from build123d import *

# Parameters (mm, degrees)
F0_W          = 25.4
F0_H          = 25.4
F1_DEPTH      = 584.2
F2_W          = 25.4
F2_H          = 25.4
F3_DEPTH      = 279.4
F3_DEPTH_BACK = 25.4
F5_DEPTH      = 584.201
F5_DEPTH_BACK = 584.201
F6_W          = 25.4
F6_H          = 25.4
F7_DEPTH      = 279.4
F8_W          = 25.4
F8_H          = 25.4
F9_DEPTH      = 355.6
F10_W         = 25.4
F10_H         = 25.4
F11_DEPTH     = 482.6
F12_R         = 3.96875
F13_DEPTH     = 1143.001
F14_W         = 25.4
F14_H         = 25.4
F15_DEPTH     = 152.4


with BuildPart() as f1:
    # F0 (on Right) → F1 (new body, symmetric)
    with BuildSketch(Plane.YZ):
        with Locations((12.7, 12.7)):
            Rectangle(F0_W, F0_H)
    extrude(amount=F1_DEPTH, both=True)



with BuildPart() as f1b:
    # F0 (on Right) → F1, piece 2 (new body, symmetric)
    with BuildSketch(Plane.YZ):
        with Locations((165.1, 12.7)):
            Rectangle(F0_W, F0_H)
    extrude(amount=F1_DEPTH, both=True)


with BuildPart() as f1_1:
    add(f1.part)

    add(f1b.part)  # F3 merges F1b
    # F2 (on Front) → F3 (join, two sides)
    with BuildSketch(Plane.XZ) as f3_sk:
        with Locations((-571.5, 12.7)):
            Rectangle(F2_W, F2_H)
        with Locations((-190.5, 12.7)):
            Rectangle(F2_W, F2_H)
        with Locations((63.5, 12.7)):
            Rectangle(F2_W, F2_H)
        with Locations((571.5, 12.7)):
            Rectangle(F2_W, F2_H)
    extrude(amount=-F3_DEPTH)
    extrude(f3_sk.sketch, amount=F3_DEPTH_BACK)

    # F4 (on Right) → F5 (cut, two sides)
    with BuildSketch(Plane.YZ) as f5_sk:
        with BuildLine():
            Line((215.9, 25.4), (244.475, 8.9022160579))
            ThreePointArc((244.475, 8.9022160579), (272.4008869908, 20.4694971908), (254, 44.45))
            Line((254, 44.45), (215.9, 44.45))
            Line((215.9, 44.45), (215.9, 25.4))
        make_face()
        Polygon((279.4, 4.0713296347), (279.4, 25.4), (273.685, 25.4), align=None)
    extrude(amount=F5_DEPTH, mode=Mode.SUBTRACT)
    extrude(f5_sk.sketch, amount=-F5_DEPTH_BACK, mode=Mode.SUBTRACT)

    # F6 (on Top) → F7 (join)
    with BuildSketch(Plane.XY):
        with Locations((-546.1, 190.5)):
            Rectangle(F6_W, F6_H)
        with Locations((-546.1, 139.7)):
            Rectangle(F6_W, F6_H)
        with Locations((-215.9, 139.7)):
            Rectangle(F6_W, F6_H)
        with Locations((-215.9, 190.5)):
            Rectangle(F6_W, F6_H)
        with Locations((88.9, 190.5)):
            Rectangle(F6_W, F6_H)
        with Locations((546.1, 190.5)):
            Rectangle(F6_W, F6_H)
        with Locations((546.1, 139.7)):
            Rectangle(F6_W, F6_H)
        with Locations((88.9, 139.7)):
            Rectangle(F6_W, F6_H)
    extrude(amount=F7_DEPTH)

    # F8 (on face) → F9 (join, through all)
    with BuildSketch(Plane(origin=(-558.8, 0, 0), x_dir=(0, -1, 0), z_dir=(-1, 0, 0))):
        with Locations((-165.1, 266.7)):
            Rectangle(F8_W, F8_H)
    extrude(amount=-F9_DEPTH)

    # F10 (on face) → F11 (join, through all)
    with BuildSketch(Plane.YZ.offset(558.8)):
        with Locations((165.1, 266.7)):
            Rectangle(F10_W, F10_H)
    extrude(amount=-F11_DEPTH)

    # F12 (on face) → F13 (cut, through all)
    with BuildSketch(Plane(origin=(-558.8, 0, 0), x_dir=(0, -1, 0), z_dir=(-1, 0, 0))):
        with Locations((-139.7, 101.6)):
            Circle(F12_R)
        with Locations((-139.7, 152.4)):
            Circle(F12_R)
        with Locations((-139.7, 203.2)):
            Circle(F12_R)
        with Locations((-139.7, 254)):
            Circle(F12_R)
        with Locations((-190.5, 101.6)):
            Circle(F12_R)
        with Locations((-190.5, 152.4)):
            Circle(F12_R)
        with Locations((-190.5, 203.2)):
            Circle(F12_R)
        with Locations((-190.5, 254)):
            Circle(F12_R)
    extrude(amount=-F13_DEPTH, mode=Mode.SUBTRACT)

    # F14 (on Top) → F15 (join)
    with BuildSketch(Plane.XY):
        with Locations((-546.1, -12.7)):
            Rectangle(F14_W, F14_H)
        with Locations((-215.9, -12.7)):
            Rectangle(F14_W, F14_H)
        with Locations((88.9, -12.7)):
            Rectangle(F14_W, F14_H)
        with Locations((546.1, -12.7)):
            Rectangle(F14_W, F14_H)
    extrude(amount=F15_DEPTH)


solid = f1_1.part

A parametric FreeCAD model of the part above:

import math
import FreeCAD as App
import Part
import Sketcher
from FreeCAD import Vector
Q = App.Units.Quantity

doc = App.newDocument("Part")
params = doc.addObject("Spreadsheet::Sheet", "Params")
for row, (alias, value) in enumerate([
    ("sketch1_width", "1 in"),
    ("pad1_length", "46 in"),
    ("sketch2_width", "1 in"),
    ("pad2_length", "46 in"),
    ("sketch3_width", "1 in"),
    ("pad3_length", "11 in"),
    ("pad3_length2", "1 in"),
    ("sketch4_radius", "0.75 in"),
    ("sketch4_width", "1.5 in"),
    ("sketch4_width2", "0.225 in"),
    ("sketch5_width", "1 in"),
    ("pad4_length", "11 in"),
    ("sketch6_width", "1 in"),
    ("pad5_length", "14 in"),
    ("sketch7_width", "1 in"),
    ("pad6_length", "19 in"),
    ("sketch8_diameter", "0.3125 in"),
    ("sketch9_width", "1 in"),
    ("pad7_length", "6 in"),
], start=1):
    params.set(f"A{row}", alias)
    params.set(f"B{row}", "=" + value)
    params.setAlias(f"B{row}", alias)

body = doc.addObject("PartDesign::Body", "Body")

# Sketch on YZ plane
sketch1 = body.newObject("Sketcher::SketchObject", "Sketch")
sketch1.AttachmentSupport = (doc.getObject("YZ_Plane"), [""])
sketch1.MapMode = "FlatFace"
sketch1.addGeometry(Part.LineSegment(Vector(0, 25, 0), Vector(0, 0, 0)), False)
sketch1.addGeometry(Part.LineSegment(Vector(0, 0, 0), Vector(25, 0, 0)), False)
sketch1.addGeometry(Part.LineSegment(Vector(25, 0, 0), Vector(25, 25, 0)), False)
sketch1.addGeometry(Part.LineSegment(Vector(25, 25, 0), Vector(0, 25, 0)), False)
sketch1.addConstraint(Sketcher.Constraint("Coincident", 0, 2, 1, 1))
sketch1.addConstraint(Sketcher.Constraint("Coincident", 1, 2, 2, 1))
sketch1.addConstraint(Sketcher.Constraint("Coincident", 2, 2, 3, 1))
sketch1.addConstraint(Sketcher.Constraint("Coincident", 3, 2, 0, 1))
sketch1.addConstraint(Sketcher.Constraint("Vertical", 0))
sketch1.addConstraint(Sketcher.Constraint("Horizontal", 1))
sketch1.addConstraint(Sketcher.Constraint("Vertical", 2))
sketch1.addConstraint(Sketcher.Constraint("Horizontal", 3))
sketch1.addConstraint(Sketcher.Constraint("Coincident", 0, 2, -1, 1))
sketch1.addConstraint(Sketcher.Constraint("Equal", 3, 0))
sketch1.addConstraint(Sketcher.Constraint("DistanceX", 1, 1, 1, 2, Q("1 in")))
sketch1.setExpression("Constraints[10]", "Params.sketch1_width")
pad1 = body.newObject("PartDesign::Pad", "Pad")
pad1.Profile = sketch1
pad1.setExpression("Length", "Params.pad1_length")
pad1.Midplane = True
body2 = doc.addObject("PartDesign::Body", "Body001")

# Sketch on YZ plane
sketch2 = body2.newObject("Sketcher::SketchObject", "Sketch001")
sketch2.AttachmentSupport = (doc.getObject("YZ_Plane001"), [""])
sketch2.MapMode = "FlatFace"
sketch2.addGeometry(Part.LineSegment(Vector(152, 25, 0), Vector(152, 0, 0)), False)
sketch2.addGeometry(Part.LineSegment(Vector(152, 0, 0), Vector(178, 0, 0)), False)
sketch2.addGeometry(Part.LineSegment(Vector(178, 0, 0), Vector(178, 25, 0)), False)
sketch2.addGeometry(Part.LineSegment(Vector(178, 25, 0), Vector(152, 25, 0)), False)
sketch2.addConstraint(Sketcher.Constraint("Coincident", 0, 2, 1, 1))
sketch2.addConstraint(Sketcher.Constraint("Coincident", 1, 2, 2, 1))
sketch2.addConstraint(Sketcher.Constraint("Coincident", 2, 2, 3, 1))
sketch2.addConstraint(Sketcher.Constraint("Coincident", 3, 2, 0, 1))
sketch2.addConstraint(Sketcher.Constraint("Vertical", 0))
sketch2.addConstraint(Sketcher.Constraint("Horizontal", 1))
sketch2.addConstraint(Sketcher.Constraint("Vertical", 2))
sketch2.addConstraint(Sketcher.Constraint("Horizontal", 3))
sketch2.addConstraint(Sketcher.Constraint("PointOnObject", 0, 2, -1))
sketch2.addConstraint(Sketcher.Constraint("Equal", 3, 0))
sketch2.addConstraint(Sketcher.Constraint("DistanceX", 1, 1, 1, 2, Q("1 in")))
sketch2.addConstraint(Sketcher.Constraint("DistanceX", -1, 1, 0, 2, Q("6 in")))
sketch2.setExpression("Constraints[10]", "Params.sketch2_width")
pad2 = body2.newObject("PartDesign::Pad", "Pad001")
pad2.Profile = sketch2
pad2.setExpression("Length", "Params.pad2_length")
pad2.Midplane = True
body.AllowCompound = True
doc.recompute()

boolean = body.newObject("PartDesign::Boolean", "Boolean")
boolean.Type = "Fuse"
boolean.addObjects([body2])

# Sketch on XZ plane
sketch3 = body.newObject("Sketcher::SketchObject", "Sketch002")
sketch3.AttachmentSupport = (doc.getObject("XZ_Plane"), [""])
sketch3.MapMode = "FlatFace"
sketch3.addGeometry(Part.LineSegment(Vector(-584, 25, 0), Vector(-584, 0, 0)), False)
sketch3.addGeometry(Part.LineSegment(Vector(-584, 0, 0), Vector(-559, 0, 0)), False)
sketch3.addGeometry(Part.LineSegment(Vector(-559, 0, 0), Vector(-559, 25, 0)), False)
sketch3.addGeometry(Part.LineSegment(Vector(-559, 25, 0), Vector(-584, 25, 0)), False)
sketch3.addGeometry(Part.LineSegment(Vector(-203, 25, 0), Vector(-203, 0, 0)), False)
sketch3.addGeometry(Part.LineSegment(Vector(-203, 0, 0), Vector(-178, 0, 0)), False)
sketch3.addGeometry(Part.LineSegment(Vector(-178, 0, 0), Vector(-178, 25, 0)), False)
sketch3.addGeometry(Part.LineSegment(Vector(-178, 25, 0), Vector(-203, 25, 0)), False)
sketch3.addGeometry(Part.LineSegment(Vector(51, 25, 0), Vector(51, 0, 0)), False)
sketch3.addGeometry(Part.LineSegment(Vector(51, 0, 0), Vector(76, 0, 0)), False)
sketch3.addGeometry(Part.LineSegment(Vector(76, 0, 0), Vector(76, 25, 0)), False)
sketch3.addGeometry(Part.LineSegment(Vector(76, 25, 0), Vector(51, 25, 0)), False)
sketch3.addGeometry(Part.LineSegment(Vector(559, 25, 0), Vector(559, 0, 0)), False)
sketch3.addGeometry(Part.LineSegment(Vector(559, 0, 0), Vector(584, 0, 0)), False)
sketch3.addGeometry(Part.LineSegment(Vector(584, 0, 0), Vector(584, 25, 0)), False)
sketch3.addGeometry(Part.LineSegment(Vector(584, 25, 0), Vector(559, 25, 0)), False)
sketch3.addConstraint(Sketcher.Constraint("Coincident", 0, 2, 1, 1))
sketch3.addConstraint(Sketcher.Constraint("Coincident", 1, 2, 2, 1))
sketch3.addConstraint(Sketcher.Constraint("Coincident", 2, 2, 3, 1))
sketch3.addConstraint(Sketcher.Constraint("Coincident", 3, 2, 0, 1))
sketch3.addConstraint(Sketcher.Constraint("Coincident", 4, 2, 5, 1))
sketch3.addConstraint(Sketcher.Constraint("Coincident", 5, 2, 6, 1))
sketch3.addConstraint(Sketcher.Constraint("Coincident", 6, 2, 7, 1))
sketch3.addConstraint(Sketcher.Constraint("Coincident", 7, 2, 4, 1))
sketch3.addConstraint(Sketcher.Constraint("Coincident", 8, 2, 9, 1))
sketch3.addConstraint(Sketcher.Constraint("Coincident", 9, 2, 10, 1))
sketch3.addConstraint(Sketcher.Constraint("Coincident", 10, 2, 11, 1))
sketch3.addConstraint(Sketcher.Constraint("Coincident", 11, 2, 8, 1))
sketch3.addConstraint(Sketcher.Constraint("Coincident", 12, 2, 13, 1))
sketch3.addConstraint(Sketcher.Constraint("Coincident", 13, 2, 14, 1))
sketch3.addConstraint(Sketcher.Constraint("Coincident", 14, 2, 15, 1))
sketch3.addConstraint(Sketcher.Constraint("Coincident", 15, 2, 12, 1))
sketch3.addConstraint(Sketcher.Constraint("Vertical", 0))
sketch3.addConstraint(Sketcher.Constraint("Horizontal", 1))
sketch3.addConstraint(Sketcher.Constraint("Vertical", 2))
sketch3.addConstraint(Sketcher.Constraint("Horizontal", 3))
sketch3.addConstraint(Sketcher.Constraint("Vertical", 4))
sketch3.addConstraint(Sketcher.Constraint("Horizontal", 5))
sketch3.addConstraint(Sketcher.Constraint("Vertical", 6))
sketch3.addConstraint(Sketcher.Constraint("Horizontal", 7))
sketch3.addConstraint(Sketcher.Constraint("Vertical", 8))
sketch3.addConstraint(Sketcher.Constraint("Horizontal", 9))
sketch3.addConstraint(Sketcher.Constraint("Vertical", 10))
sketch3.addConstraint(Sketcher.Constraint("Horizontal", 11))
sketch3.addConstraint(Sketcher.Constraint("Vertical", 12))
sketch3.addConstraint(Sketcher.Constraint("Horizontal", 13))
sketch3.addConstraint(Sketcher.Constraint("Vertical", 14))
sketch3.addConstraint(Sketcher.Constraint("Horizontal", 15))
sketch3.addConstraint(Sketcher.Constraint("Symmetric", 1, 2, 12, 2, -1, 1))
sketch3.addConstraint(Sketcher.Constraint("Symmetric", 0, 2, 13, 2, -2))
sketch3.addConstraint(Sketcher.Constraint("PointOnObject", 4, 2, -1))
sketch3.addConstraint(Sketcher.Constraint("PointOnObject", 8, 2, -1))
sketch3.addConstraint(Sketcher.Constraint("Horizontal", 3, 2, 6, 2))
sketch3.addConstraint(Sketcher.Constraint("Horizontal", 7, 2, 10, 2))
sketch3.addConstraint(Sketcher.Constraint("Horizontal", 11, 2, 14, 2))
sketch3.addConstraint(Sketcher.Constraint("Equal", 3, 5))
sketch3.addConstraint(Sketcher.Constraint("Equal", 7, 9))
sketch3.addConstraint(Sketcher.Constraint("Equal", 15, 0))
sketch3.addConstraint(Sketcher.Constraint("DistanceX", 1, 1, 1, 2, Q("1 in")))
sketch3.addConstraint(Sketcher.Constraint("DistanceX", 0, 2, -1, 1, Q("23 in")))
sketch3.addConstraint(Sketcher.Constraint("DistanceX", 4, 2, -1, 1, Q("8 in")))
sketch3.addConstraint(Sketcher.Constraint("DistanceX", -1, 1, 8, 2, Q("2 in")))
sketch3.setExpression("Constraints[42]", "Params.sketch3_width")
pad3 = body.newObject("PartDesign::Pad", "Pad002")
pad3.Profile = sketch3
pad3.Type = "TwoLengths"
pad3.setExpression("Length", "Params.pad3_length")
pad3.setExpression("Length2", "Params.pad3_length2")
pad3.Reversed = True

# Sketch on YZ plane
sketch4 = body.newObject("Sketcher::SketchObject", "Sketch003")
sketch4.AttachmentSupport = (doc.getObject("YZ_Plane"), [""])
sketch4.MapMode = "FlatFace"
sketch4.addGeometry(Part.LineSegment(Vector(216, 25, 0), Vector(244, 9, 0)), False)
sketch4.addGeometry(Part.ArcOfCircle(Part.Circle(Vector(254, 25, 0), Vector(0, 0, 1), 19), math.radians(-120), math.radians(90)), False)
sketch4.addGeometry(Part.LineSegment(Vector(254, 44, 0), Vector(216, 44, 0)), False)
sketch4.addGeometry(Part.LineSegment(Vector(216, 44, 0), Vector(216, 25, 0)), False)
sketch4.addGeometry(Part.LineSegment(Vector(279, 4, 0), Vector(279, 25, 0)), False)
sketch4.addGeometry(Part.LineSegment(Vector(279, 25, 0), Vector(274, 25, 0)), False)
sketch4.addGeometry(Part.LineSegment(Vector(274, 25, 0), Vector(279, 4, 0)), False)
sketch4.addConstraint(Sketcher.Constraint("Tangent", 0, 2, 1, 1))
sketch4.addConstraint(Sketcher.Constraint("Tangent", 1, 2, 2, 1))
sketch4.addConstraint(Sketcher.Constraint("Coincident", 2, 2, 3, 1))
sketch4.addConstraint(Sketcher.Constraint("Coincident", 3, 2, 0, 1))
sketch4.addConstraint(Sketcher.Constraint("Coincident", 4, 2, 5, 1))
sketch4.addConstraint(Sketcher.Constraint("Coincident", 5, 2, 6, 1))
sketch4.addConstraint(Sketcher.Constraint("Coincident", 6, 2, 4, 1))
sketch4.addConstraint(Sketcher.Constraint("Horizontal", 2))
sketch4.addConstraint(Sketcher.Constraint("Vertical", 3))
sketch4.addConstraint(Sketcher.Constraint("Vertical", 4))
sketch4.addConstraint(Sketcher.Constraint("Horizontal", 5))
sketch4.addConstraint(Sketcher.Constraint("Horizontal", 1, 3, 3, 2))
sketch4.addConstraint(Sketcher.Constraint("Horizontal", 3, 2, 4, 2))
sketch4.addConstraint(Sketcher.Constraint("Radius", 1, Q("0.75 in")))
sketch4.addConstraint(Sketcher.Constraint("DistanceX", 2, 2, 2, 1, Q("1.5 in")))
sketch4.addConstraint(Sketcher.Constraint("DistanceX", -1, 1, 1, 3, Q("10 in")))
sketch4.addConstraint(Sketcher.Constraint("DistanceY", -1, 1, 1, 3, Q("1 in")))
sketch4.addConstraint(Sketcher.Constraint("DistanceX", -1, 1, 4, 2, Q("11 in")))
sketch4.addConstraint(Sketcher.Constraint("Angle", 6, Q("-75 deg")))
sketch4.addConstraint(Sketcher.Constraint("DistanceX", 5, 2, 5, 1, Q("0.225 in")))
sketch4.setExpression("Constraints[13]", "Params.sketch4_radius")
sketch4.setExpression("Constraints[14]", "Params.sketch4_width")
sketch4.setExpression("Constraints[19]", "Params.sketch4_width2")
pocket1 = body.newObject("PartDesign::Pocket", "Pocket")
pocket1.Profile = sketch4
pocket1.Type = "ThroughAll"
pocket1.Midplane = True

# Sketch on XY plane
sketch5 = body.newObject("Sketcher::SketchObject", "Sketch004")
sketch5.AttachmentSupport = (doc.getObject("XY_Plane"), [""])
sketch5.MapMode = "FlatFace"
sketch5.addGeometry(Part.LineSegment(Vector(-559, 203, 0), Vector(-559, 178, 0)), False)
sketch5.addGeometry(Part.LineSegment(Vector(-559, 178, 0), Vector(-533, 178, 0)), False)
sketch5.addGeometry(Part.LineSegment(Vector(-533, 178, 0), Vector(-533, 203, 0)), False)
sketch5.addGeometry(Part.LineSegment(Vector(-533, 203, 0), Vector(-559, 203, 0)), False)
sketch5.addGeometry(Part.LineSegment(Vector(-559, 152, 0), Vector(-559, 127, 0)), False)
sketch5.addGeometry(Part.LineSegment(Vector(-559, 127, 0), Vector(-533, 127, 0)), False)
sketch5.addGeometry(Part.LineSegment(Vector(-533, 127, 0), Vector(-533, 152, 0)), False)
sketch5.addGeometry(Part.LineSegment(Vector(-533, 152, 0), Vector(-559, 152, 0)), False)
sketch5.addGeometry(Part.LineSegment(Vector(-229, 152, 0), Vector(-229, 127, 0)), False)
sketch5.addGeometry(Part.LineSegment(Vector(-229, 127, 0), Vector(-203, 127, 0)), False)
sketch5.addGeometry(Part.LineSegment(Vector(-203, 127, 0), Vector(-203, 152, 0)), False)
sketch5.addGeometry(Part.LineSegment(Vector(-203, 152, 0), Vector(-229, 152, 0)), False)
sketch5.addGeometry(Part.LineSegment(Vector(-229, 203, 0), Vector(-229, 178, 0)), False)
sketch5.addGeometry(Part.LineSegment(Vector(-229, 178, 0), Vector(-203, 178, 0)), False)
sketch5.addGeometry(Part.LineSegment(Vector(-203, 178, 0), Vector(-203, 203, 0)), False)
sketch5.addGeometry(Part.LineSegment(Vector(-203, 203, 0), Vector(-229, 203, 0)), False)
sketch5.addGeometry(Part.LineSegment(Vector(76, 203, 0), Vector(76, 178, 0)), False)
sketch5.addGeometry(Part.LineSegment(Vector(76, 178, 0), Vector(102, 178, 0)), False)
sketch5.addGeometry(Part.LineSegment(Vector(102, 178, 0), Vector(102, 203, 0)), False)
sketch5.addGeometry(Part.LineSegment(Vector(102, 203, 0), Vector(76, 203, 0)), False)
sketch5.addGeometry(Part.LineSegment(Vector(533, 203, 0), Vector(533, 178, 0)), False)
sketch5.addGeometry(Part.LineSegment(Vector(533, 178, 0), Vector(559, 178, 0)), False)
sketch5.addGeometry(Part.LineSegment(Vector(559, 178, 0), Vector(559, 203, 0)), False)
sketch5.addGeometry(Part.LineSegment(Vector(559, 203, 0), Vector(533, 203, 0)), False)
sketch5.addGeometry(Part.LineSegment(Vector(533, 152, 0), Vector(533, 127, 0)), False)
sketch5.addGeometry(Part.LineSegment(Vector(533, 127, 0), Vector(559, 127, 0)), False)
sketch5.addGeometry(Part.LineSegment(Vector(559, 127, 0), Vector(559, 152, 0)), False)
sketch5.addGeometry(Part.LineSegment(Vector(559, 152, 0), Vector(533, 152, 0)), False)
sketch5.addGeometry(Part.LineSegment(Vector(76, 152, 0), Vector(76, 127, 0)), False)
sketch5.addGeometry(Part.LineSegment(Vector(76, 127, 0), Vector(102, 127, 0)), False)
sketch5.addGeometry(Part.LineSegment(Vector(102, 127, 0), Vector(102, 152, 0)), False)
sketch5.addGeometry(Part.LineSegment(Vector(102, 152, 0), Vector(76, 152, 0)), False)
sketch5.addConstraint(Sketcher.Constraint("Coincident", 0, 2, 1, 1))
sketch5.addConstraint(Sketcher.Constraint("Coincident", 1, 2, 2, 1))
sketch5.addConstraint(Sketcher.Constraint("Coincident", 2, 2, 3, 1))
sketch5.addConstraint(Sketcher.Constraint("Coincident", 3, 2, 0, 1))
sketch5.addConstraint(Sketcher.Constraint("Coincident", 4, 2, 5, 1))
sketch5.addConstraint(Sketcher.Constraint("Coincident", 5, 2, 6, 1))
sketch5.addConstraint(Sketcher.Constraint("Coincident", 6, 2, 7, 1))
sketch5.addConstraint(Sketcher.Constraint("Coincident", 7, 2, 4, 1))
sketch5.addConstraint(Sketcher.Constraint("Coincident", 8, 2, 9, 1))
sketch5.addConstraint(Sketcher.Constraint("Coincident", 9, 2, 10, 1))
sketch5.addConstraint(Sketcher.Constraint("Coincident", 10, 2, 11, 1))
sketch5.addConstraint(Sketcher.Constraint("Coincident", 11, 2, 8, 1))
sketch5.addConstraint(Sketcher.Constraint("Coincident", 12, 2, 13, 1))
sketch5.addConstraint(Sketcher.Constraint("Coincident", 13, 2, 14, 1))
sketch5.addConstraint(Sketcher.Constraint("Coincident", 14, 2, 15, 1))
sketch5.addConstraint(Sketcher.Constraint("Coincident", 15, 2, 12, 1))
sketch5.addConstraint(Sketcher.Constraint("Coincident", 16, 2, 17, 1))
sketch5.addConstraint(Sketcher.Constraint("Coincident", 17, 2, 18, 1))
sketch5.addConstraint(Sketcher.Constraint("Coincident", 18, 2, 19, 1))
sketch5.addConstraint(Sketcher.Constraint("Coincident", 19, 2, 16, 1))
sketch5.addConstraint(Sketcher.Constraint("Coincident", 20, 2, 21, 1))
sketch5.addConstraint(Sketcher.Constraint("Coincident", 21, 2, 22, 1))
sketch5.addConstraint(Sketcher.Constraint("Coincident", 22, 2, 23, 1))
sketch5.addConstraint(Sketcher.Constraint("Coincident", 23, 2, 20, 1))
sketch5.addConstraint(Sketcher.Constraint("Coincident", 24, 2, 25, 1))
sketch5.addConstraint(Sketcher.Constraint("Coincident", 25, 2, 26, 1))
sketch5.addConstraint(Sketcher.Constraint("Coincident", 26, 2, 27, 1))
sketch5.addConstraint(Sketcher.Constraint("Coincident", 27, 2, 24, 1))
sketch5.addConstraint(Sketcher.Constraint("Coincident", 28, 2, 29, 1))
sketch5.addConstraint(Sketcher.Constraint("Coincident", 29, 2, 30, 1))
sketch5.addConstraint(Sketcher.Constraint("Coincident", 30, 2, 31, 1))
sketch5.addConstraint(Sketcher.Constraint("Coincident", 31, 2, 28, 1))
sketch5.addConstraint(Sketcher.Constraint("Vertical", 0))
sketch5.addConstraint(Sketcher.Constraint("Horizontal", 1))
sketch5.addConstraint(Sketcher.Constraint("Vertical", 2))
sketch5.addConstraint(Sketcher.Constraint("Horizontal", 3))
sketch5.addConstraint(Sketcher.Constraint("Vertical", 4))
sketch5.addConstraint(Sketcher.Constraint("Horizontal", 5))
sketch5.addConstraint(Sketcher.Constraint("Vertical", 6))
sketch5.addConstraint(Sketcher.Constraint("Horizontal", 7))
sketch5.addConstraint(Sketcher.Constraint("Vertical", 8))
sketch5.addConstraint(Sketcher.Constraint("Horizontal", 9))
sketch5.addConstraint(Sketcher.Constraint("Vertical", 10))
sketch5.addConstraint(Sketcher.Constraint("Horizontal", 11))
sketch5.addConstraint(Sketcher.Constraint("Vertical", 12))
sketch5.addConstraint(Sketcher.Constraint("Horizontal", 13))
sketch5.addConstraint(Sketcher.Constraint("Vertical", 14))
sketch5.addConstraint(Sketcher.Constraint("Horizontal", 15))
sketch5.addConstraint(Sketcher.Constraint("Vertical", 16))
sketch5.addConstraint(Sketcher.Constraint("Horizontal", 17))
sketch5.addConstraint(Sketcher.Constraint("Vertical", 18))
sketch5.addConstraint(Sketcher.Constraint("Horizontal", 19))
sketch5.addConstraint(Sketcher.Constraint("Vertical", 20))
sketch5.addConstraint(Sketcher.Constraint("Horizontal", 21))
sketch5.addConstraint(Sketcher.Constraint("Vertical", 22))
sketch5.addConstraint(Sketcher.Constraint("Horizontal", 23))
sketch5.addConstraint(Sketcher.Constraint("Vertical", 24))
sketch5.addConstraint(Sketcher.Constraint("Horizontal", 25))
sketch5.addConstraint(Sketcher.Constraint("Vertical", 26))
sketch5.addConstraint(Sketcher.Constraint("Horizontal", 27))
sketch5.addConstraint(Sketcher.Constraint("Vertical", 28))
sketch5.addConstraint(Sketcher.Constraint("Horizontal", 29))
sketch5.addConstraint(Sketcher.Constraint("Vertical", 30))
sketch5.addConstraint(Sketcher.Constraint("Horizontal", 31))
sketch5.addConstraint(Sketcher.Constraint("Symmetric", 1, 2, 20, 2, -2))
sketch5.addConstraint(Sketcher.Constraint("Symmetric", 3, 2, 22, 2, -2))
sketch5.addConstraint(Sketcher.Constraint("Symmetric", 5, 2, 24, 2, -2))
sketch5.addConstraint(Sketcher.Constraint("Symmetric", 7, 2, 26, 2, -2))
sketch5.addConstraint(Sketcher.Constraint("Horizontal", 5, 2, 8, 2))
sketch5.addConstraint(Sketcher.Constraint("Horizontal", 7, 2, 10, 2))
sketch5.addConstraint(Sketcher.Constraint("Horizontal", 1, 2, 12, 2))
sketch5.addConstraint(Sketcher.Constraint("Horizontal", 3, 2, 14, 2))
sketch5.addConstraint(Sketcher.Constraint("Horizontal", 13, 2, 16, 2))
sketch5.addConstraint(Sketcher.Constraint("Horizontal", 15, 2, 18, 2))
sketch5.addConstraint(Sketcher.Constraint("Horizontal", 25, 2, 28, 2))
sketch5.addConstraint(Sketcher.Constraint("Horizontal", 27, 2, 30, 2))
sketch5.addConstraint(Sketcher.Constraint("Vertical", 3, 2, 4, 2))
sketch5.addConstraint(Sketcher.Constraint("Vertical", 2, 2, 5, 2))
sketch5.addConstraint(Sketcher.Constraint("Vertical", 11, 2, 12, 2))
sketch5.addConstraint(Sketcher.Constraint("Vertical", 10, 2, 13, 2))
sketch5.addConstraint(Sketcher.Constraint("Vertical", 19, 2, 28, 2))
sketch5.addConstraint(Sketcher.Constraint("Vertical", 18, 2, 29, 2))
sketch5.addConstraint(Sketcher.Constraint("Equal", 7, 9))
sketch5.addConstraint(Sketcher.Constraint("Equal", 15, 17))
sketch5.addConstraint(Sketcher.Constraint("Equal", 31, 0))
sketch5.addConstraint(Sketcher.Constraint("Equal", 2, 4))
sketch5.addConstraint(Sketcher.Constraint("DistanceX", 1, 1, 1, 2, Q("1 in")))
sketch5.addConstraint(Sketcher.Constraint("DistanceX", 0, 2, -1, 1, Q("22 in")))
sketch5.addConstraint(Sketcher.Constraint("DistanceY", -1, 1, 0, 2, Q("7 in")))
sketch5.addConstraint(Sketcher.Constraint("DistanceY", -1, 1, 4, 2, Q("5 in")))
sketch5.addConstraint(Sketcher.Constraint("DistanceX", 8, 2, -1, 1, Q("9 in")))
sketch5.addConstraint(Sketcher.Constraint("DistanceX", -1, 1, 16, 2, Q("3 in")))
sketch5.setExpression("Constraints[86]", "Params.sketch5_width")
pad4 = body.newObject("PartDesign::Pad", "Pad003")
pad4.Profile = sketch5
pad4.setExpression("Length", "Params.pad4_length")

# Sketch on YZ plane
sketch6 = body.newObject("Sketcher::SketchObject", "Sketch005")
sketch6.AttachmentSupport = (doc.getObject("YZ_Plane"), [""])
sketch6.MapMode = "FlatFace"
sketch6.AttachmentOffset = App.Placement(Vector(0, 0, -22 * 25.4), App.Rotation())
sketch6.addGeometry(Part.LineSegment(Vector(178, 279, 0), Vector(178, 254, 0)), False)
sketch6.addGeometry(Part.LineSegment(Vector(178, 254, 0), Vector(152, 254, 0)), False)
sketch6.addGeometry(Part.LineSegment(Vector(152, 254, 0), Vector(152, 279, 0)), False)
sketch6.addGeometry(Part.LineSegment(Vector(152, 279, 0), Vector(178, 279, 0)), False)
sketch6.addConstraint(Sketcher.Constraint("Coincident", 0, 2, 1, 1))
sketch6.addConstraint(Sketcher.Constraint("Coincident", 1, 2, 2, 1))
sketch6.addConstraint(Sketcher.Constraint("Coincident", 2, 2, 3, 1))
sketch6.addConstraint(Sketcher.Constraint("Coincident", 3, 2, 0, 1))
sketch6.addConstraint(Sketcher.Constraint("Vertical", 0))
sketch6.addConstraint(Sketcher.Constraint("Horizontal", 1))
sketch6.addConstraint(Sketcher.Constraint("Vertical", 2))
sketch6.addConstraint(Sketcher.Constraint("Horizontal", 3))
sketch6.addConstraint(Sketcher.Constraint("Equal", 3, 0))
sketch6.addConstraint(Sketcher.Constraint("DistanceX", 1, 2, 1, 1, Q("1 in")))
sketch6.addConstraint(Sketcher.Constraint("DistanceX", -1, 1, 0, 2, Q("7 in")))
sketch6.addConstraint(Sketcher.Constraint("DistanceY", -1, 1, 0, 2, Q("10 in")))
sketch6.setExpression("Constraints[9]", "Params.sketch6_width")
pad5 = body.newObject("PartDesign::Pad", "Pad004")
pad5.Profile = sketch6
pad5.setExpression("Length", "Params.pad5_length")

# Sketch on YZ plane
sketch7 = body.newObject("Sketcher::SketchObject", "Sketch006")
sketch7.AttachmentSupport = (doc.getObject("YZ_Plane"), [""])
sketch7.MapMode = "FlatFace"
sketch7.AttachmentOffset = App.Placement(Vector(0, 0, 22 * 25.4), App.Rotation())
sketch7.addGeometry(Part.LineSegment(Vector(152, 279, 0), Vector(152, 254, 0)), False)
sketch7.addGeometry(Part.LineSegment(Vector(152, 254, 0), Vector(178, 254, 0)), False)
sketch7.addGeometry(Part.LineSegment(Vector(178, 254, 0), Vector(178, 279, 0)), False)
sketch7.addGeometry(Part.LineSegment(Vector(178, 279, 0), Vector(152, 279, 0)), False)
sketch7.addConstraint(Sketcher.Constraint("Coincident", 0, 2, 1, 1))
sketch7.addConstraint(Sketcher.Constraint("Coincident", 1, 2, 2, 1))
sketch7.addConstraint(Sketcher.Constraint("Coincident", 2, 2, 3, 1))
sketch7.addConstraint(Sketcher.Constraint("Coincident", 3, 2, 0, 1))
sketch7.addConstraint(Sketcher.Constraint("Vertical", 0))
sketch7.addConstraint(Sketcher.Constraint("Horizontal", 1))
sketch7.addConstraint(Sketcher.Constraint("Vertical", 2))
sketch7.addConstraint(Sketcher.Constraint("Horizontal", 3))
sketch7.addConstraint(Sketcher.Constraint("Equal", 3, 0))
sketch7.addConstraint(Sketcher.Constraint("DistanceX", 1, 1, 1, 2, Q("1 in")))
sketch7.addConstraint(Sketcher.Constraint("DistanceX", -1, 1, 0, 2, Q("6 in")))
sketch7.addConstraint(Sketcher.Constraint("DistanceY", -1, 1, 0, 2, Q("10 in")))
sketch7.setExpression("Constraints[9]", "Params.sketch7_width")
pad6 = body.newObject("PartDesign::Pad", "Pad005")
pad6.Profile = sketch7
pad6.setExpression("Length", "Params.pad6_length")
pad6.Reversed = True

# Sketch on YZ plane
sketch8 = body.newObject("Sketcher::SketchObject", "Sketch007")
sketch8.AttachmentSupport = (doc.getObject("YZ_Plane"), [""])
sketch8.MapMode = "FlatFace"
sketch8.AttachmentOffset = App.Placement(Vector(0, 0, -22 * 25.4), App.Rotation())
sketch8.addGeometry(Part.Circle(Vector(139.7, 101.6, 0), Vector(0, 0, 1), 4), False)
sketch8.addGeometry(Part.Circle(Vector(139.7, 152.4, 0), Vector(0, 0, 1), 4), False)
sketch8.addGeometry(Part.Circle(Vector(139.7, 203.2, 0), Vector(0, 0, 1), 4), False)
sketch8.addGeometry(Part.Circle(Vector(139.7, 254, 0), Vector(0, 0, 1), 4), False)
sketch8.addGeometry(Part.Circle(Vector(190.5, 101.6, 0), Vector(0, 0, 1), 4), False)
sketch8.addGeometry(Part.Circle(Vector(190.5, 152.4, 0), Vector(0, 0, 1), 4), False)
sketch8.addGeometry(Part.Circle(Vector(190.5, 203.2, 0), Vector(0, 0, 1), 4), False)
sketch8.addGeometry(Part.Circle(Vector(190.5, 254, 0), Vector(0, 0, 1), 4), False)
sketch8.addConstraint(Sketcher.Constraint("Equal", 0, 1))
sketch8.addConstraint(Sketcher.Constraint("Equal", 1, 2))
sketch8.addConstraint(Sketcher.Constraint("Equal", 2, 3))
sketch8.addConstraint(Sketcher.Constraint("Equal", 3, 4))
sketch8.addConstraint(Sketcher.Constraint("Equal", 4, 5))
sketch8.addConstraint(Sketcher.Constraint("Equal", 5, 6))
sketch8.addConstraint(Sketcher.Constraint("Equal", 6, 7))
sketch8.addConstraint(Sketcher.Constraint("Horizontal", 0, 3, 4, 3))
sketch8.addConstraint(Sketcher.Constraint("Horizontal", 1, 3, 5, 3))
sketch8.addConstraint(Sketcher.Constraint("Horizontal", 2, 3, 6, 3))
sketch8.addConstraint(Sketcher.Constraint("Horizontal", 3, 3, 7, 3))
sketch8.addConstraint(Sketcher.Constraint("Vertical", 0, 3, 1, 3))
sketch8.addConstraint(Sketcher.Constraint("Vertical", 1, 3, 2, 3))
sketch8.addConstraint(Sketcher.Constraint("Vertical", 2, 3, 3, 3))
sketch8.addConstraint(Sketcher.Constraint("Vertical", 4, 3, 5, 3))
sketch8.addConstraint(Sketcher.Constraint("Vertical", 5, 3, 6, 3))
sketch8.addConstraint(Sketcher.Constraint("Vertical", 6, 3, 7, 3))
sketch8.addConstraint(Sketcher.Constraint("Diameter", 0, Q("0.3125 in")))
sketch8.addConstraint(Sketcher.Constraint("DistanceY", -1, 1, 0, 3, Q("4 in")))
sketch8.addConstraint(Sketcher.Constraint("DistanceY", -1, 1, 1, 3, Q("6 in")))
sketch8.addConstraint(Sketcher.Constraint("DistanceY", -1, 1, 2, 3, Q("8 in")))
sketch8.addConstraint(Sketcher.Constraint("DistanceY", -1, 1, 3, 3, Q("10 in")))
sketch8.addConstraint(Sketcher.Constraint("DistanceX", 0, 3, 4, 3, Q("2 in")))
sketch8.addConstraint(Sketcher.Constraint("DistanceX", -1, 1, 0, 3, Q("5.5 in")))
sketch8.setExpression("Constraints[17]", "Params.sketch8_diameter")
pocket2 = body.newObject("PartDesign::Pocket", "Pocket001")
pocket2.Profile = sketch8
pocket2.Type = "ThroughAll"
pocket2.Reversed = True

# Sketch on XY plane
sketch9 = body.newObject("Sketcher::SketchObject", "Sketch008")
sketch9.AttachmentSupport = (doc.getObject("XY_Plane"), [""])
sketch9.MapMode = "FlatFace"
sketch9.addGeometry(Part.LineSegment(Vector(-559, 0, 0), Vector(-559, -25, 0)), False)
sketch9.addGeometry(Part.LineSegment(Vector(-559, -25, 0), Vector(-533, -25, 0)), False)
sketch9.addGeometry(Part.LineSegment(Vector(-533, -25, 0), Vector(-533, 0, 0)), False)
sketch9.addGeometry(Part.LineSegment(Vector(-533, 0, 0), Vector(-559, 0, 0)), False)
sketch9.addGeometry(Part.LineSegment(Vector(-229, 0, 0), Vector(-229, -25, 0)), False)
sketch9.addGeometry(Part.LineSegment(Vector(-229, -25, 0), Vector(-203, -25, 0)), False)
sketch9.addGeometry(Part.LineSegment(Vector(-203, -25, 0), Vector(-203, 0, 0)), False)
sketch9.addGeometry(Part.LineSegment(Vector(-203, 0, 0), Vector(-229, 0, 0)), False)
sketch9.addGeometry(Part.LineSegment(Vector(76, 0, 0), Vector(76, -25, 0)), False)
sketch9.addGeometry(Part.LineSegment(Vector(76, -25, 0), Vector(102, -25, 0)), False)
sketch9.addGeometry(Part.LineSegment(Vector(102, -25, 0), Vector(102, 0, 0)), False)
sketch9.addGeometry(Part.LineSegment(Vector(102, 0, 0), Vector(76, 0, 0)), False)
sketch9.addGeometry(Part.LineSegment(Vector(533, 0, 0), Vector(533, -25, 0)), False)
sketch9.addGeometry(Part.LineSegment(Vector(533, -25, 0), Vector(559, -25, 0)), False)
sketch9.addGeometry(Part.LineSegment(Vector(559, -25, 0), Vector(559, 0, 0)), False)
sketch9.addGeometry(Part.LineSegment(Vector(559, 0, 0), Vector(533, 0, 0)), False)
sketch9.addConstraint(Sketcher.Constraint("Coincident", 0, 2, 1, 1))
sketch9.addConstraint(Sketcher.Constraint("Coincident", 1, 2, 2, 1))
sketch9.addConstraint(Sketcher.Constraint("Coincident", 2, 2, 3, 1))
sketch9.addConstraint(Sketcher.Constraint("Coincident", 3, 2, 0, 1))
sketch9.addConstraint(Sketcher.Constraint("Coincident", 4, 2, 5, 1))
sketch9.addConstraint(Sketcher.Constraint("Coincident", 5, 2, 6, 1))
sketch9.addConstraint(Sketcher.Constraint("Coincident", 6, 2, 7, 1))
sketch9.addConstraint(Sketcher.Constraint("Coincident", 7, 2, 4, 1))
sketch9.addConstraint(Sketcher.Constraint("Coincident", 8, 2, 9, 1))
sketch9.addConstraint(Sketcher.Constraint("Coincident", 9, 2, 10, 1))
sketch9.addConstraint(Sketcher.Constraint("Coincident", 10, 2, 11, 1))
sketch9.addConstraint(Sketcher.Constraint("Coincident", 11, 2, 8, 1))
sketch9.addConstraint(Sketcher.Constraint("Coincident", 12, 2, 13, 1))
sketch9.addConstraint(Sketcher.Constraint("Coincident", 13, 2, 14, 1))
sketch9.addConstraint(Sketcher.Constraint("Coincident", 14, 2, 15, 1))
sketch9.addConstraint(Sketcher.Constraint("Coincident", 15, 2, 12, 1))
sketch9.addConstraint(Sketcher.Constraint("Vertical", 0))
sketch9.addConstraint(Sketcher.Constraint("Horizontal", 1))
sketch9.addConstraint(Sketcher.Constraint("Vertical", 2))
sketch9.addConstraint(Sketcher.Constraint("Horizontal", 3))
sketch9.addConstraint(Sketcher.Constraint("Vertical", 4))
sketch9.addConstraint(Sketcher.Constraint("Horizontal", 5))
sketch9.addConstraint(Sketcher.Constraint("Vertical", 6))
sketch9.addConstraint(Sketcher.Constraint("Horizontal", 7))
sketch9.addConstraint(Sketcher.Constraint("Vertical", 8))
sketch9.addConstraint(Sketcher.Constraint("Horizontal", 9))
sketch9.addConstraint(Sketcher.Constraint("Vertical", 10))
sketch9.addConstraint(Sketcher.Constraint("Horizontal", 11))
sketch9.addConstraint(Sketcher.Constraint("Vertical", 12))
sketch9.addConstraint(Sketcher.Constraint("Horizontal", 13))
sketch9.addConstraint(Sketcher.Constraint("Vertical", 14))
sketch9.addConstraint(Sketcher.Constraint("Horizontal", 15))
sketch9.addConstraint(Sketcher.Constraint("Symmetric", 3, 2, 14, 2, -1, 1))
sketch9.addConstraint(Sketcher.Constraint("Symmetric", 1, 2, 12, 2, -2))
sketch9.addConstraint(Sketcher.Constraint("PointOnObject", 2, 2, -1))
sketch9.addConstraint(Sketcher.Constraint("PointOnObject", 6, 2, -1))
sketch9.addConstraint(Sketcher.Constraint("PointOnObject", 10, 2, -1))
sketch9.addConstraint(Sketcher.Constraint("Horizontal", 1, 2, 4, 2))
sketch9.addConstraint(Sketcher.Constraint("Horizontal", 5, 2, 8, 2))
sketch9.addConstraint(Sketcher.Constraint("Equal", 3, 5))
sketch9.addConstraint(Sketcher.Constraint("Equal", 7, 9))
sketch9.addConstraint(Sketcher.Constraint("Equal", 15, 0))
sketch9.addConstraint(Sketcher.Constraint("DistanceX", 1, 1, 1, 2, Q("1 in")))
sketch9.addConstraint(Sketcher.Constraint("DistanceX", 0, 2, -1, 1, Q("22 in")))
sketch9.addConstraint(Sketcher.Constraint("DistanceX", 4, 2, -1, 1, Q("9 in")))
sketch9.addConstraint(Sketcher.Constraint("DistanceX", -1, 1, 8, 2, Q("3 in")))
sketch9.setExpression("Constraints[42]", "Params.sketch9_width")
pad7 = body.newObject("PartDesign::Pad", "Pad006")
pad7.Profile = sketch9
pad7.setExpression("Length", "Params.pad7_length")

doc.recompute()
